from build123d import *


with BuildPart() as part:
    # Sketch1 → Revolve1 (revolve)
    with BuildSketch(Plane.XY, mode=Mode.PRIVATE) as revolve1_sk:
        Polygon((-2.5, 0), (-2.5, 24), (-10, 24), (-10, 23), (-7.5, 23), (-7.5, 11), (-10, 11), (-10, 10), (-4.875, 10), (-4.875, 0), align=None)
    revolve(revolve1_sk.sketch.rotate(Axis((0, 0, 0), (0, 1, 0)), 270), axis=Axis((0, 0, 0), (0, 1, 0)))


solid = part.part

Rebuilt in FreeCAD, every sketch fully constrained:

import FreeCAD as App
import Part
import Sketcher
from FreeCAD import Vector

doc = App.newDocument("Part")
body = doc.addObject("PartDesign::Body", "Body")

# Sketch on XY plane
sketch1 = body.newObject("Sketcher::SketchObject", "Sketch")
sketch1.AttachmentSupport = (doc.getObject("XY_Plane"), [""])
sketch1.MapMode = "FlatFace"
sketch1.addGeometry(Part.LineSegment(Vector(-2.5, 0, 0), Vector(-2.5, 24, 0)), False)
sketch1.addGeometry(Part.LineSegment(Vector(-2.5, 24, 0), Vector(-10, 24, 0)), False)
sketch1.addGeometry(Part.LineSegment(Vector(-10, 24, 0), Vector(-10, 23, 0)), False)
sketch1.addGeometry(Part.LineSegment(Vector(-10, 23, 0), Vector(-7.5, 23, 0)), False)
sketch1.addGeometry(Part.LineSegment(Vector(-7.5, 23, 0), Vector(-7.5, 11, 0)), False)
sketch1.addGeometry(Part.LineSegment(Vector(-7.5, 11, 0), Vector(-10, 11, 0)), False)
sketch1.addGeometry(Part.LineSegment(Vector(-10, 11, 0), Vector(-10, 10, 0)), False)
sketch1.addGeometry(Part.LineSegment(Vector(-10, 10, 0), Vector(-4.9, 10, 0)), False)
sketch1.addGeometry(Part.LineSegment(Vector(-4.9, 10, 0), Vector(-4.9, 0, 0)), False)
sketch1.addGeometry(Part.LineSegment(Vector(-4.9, 0, 0), Vector(-2.5, 0, 0)), False)
sketch1.addConstraint(Sketcher.Constraint("Coincident", 0, 2, 1, 1))
sketch1.addConstraint(Sketcher.Constraint("Coincident", 1, 2, 2, 1))
sketch1.addConstraint(Sketcher.Constraint("Coincident", 2, 2, 3, 1))
sketch1.addConstraint(Sketcher.Constraint("Coincident", 3, 2, 4, 1))
sketch1.addConstraint(Sketcher.Constraint("Coincident", 4, 2, 5, 1))
sketch1.addConstraint(Sketcher.Constraint("Coincident", 5, 2, 6, 1))
sketch1.addConstraint(Sketcher.Constraint("Coincident", 6, 2, 7, 1))
sketch1.addConstraint(Sketcher.Constraint("Coincident", 7, 2, 8, 1))
sketch1.addConstraint(Sketcher.Constraint("Coincident", 8, 2, 9, 1))
sketch1.addConstraint(Sketcher.Constraint("Coincident", 9, 2, 0, 1))
sketch1.addConstraint(Sketcher.Constraint("Vertical", 0))
sketch1.addConstraint(Sketcher.Constraint("Horizontal", 1))
sketch1.addConstraint(Sketcher.Constraint("Vertical", 2))
sketch1.addConstraint(Sketcher.Constraint("Horizontal", 3))
sketch1.addConstraint(Sketcher.Constraint("Vertical", 4))
sketch1.addConstraint(Sketcher.Constraint("Horizontal", 5))
sketch1.addConstraint(Sketcher.Constraint("Vertical", 6))
sketch1.addConstraint(Sketcher.Constraint("Horizontal", 7))
sketch1.addConstraint(Sketcher.Constraint("Vertical", 8))
sketch1.addConstraint(Sketcher.Constraint("Horizontal", 9))
sketch1.addConstraint(Sketcher.Constraint("PointOnObject", 8, 2, -1))
sketch1.addConstraint(Sketcher.Constraint("Vertical", 2, 2, 5, 2))
sketch1.addConstraint(Sketcher.Constraint("Equal", 2, 6))
sketch1.addConstraint(Sketcher.Constraint("DistanceY", 0, 1, 0, 2, 24.0))
sketch1.addConstraint(Sketcher.Constraint("DistanceY", 2, 2, 2, 1, 1.0))
sketch1.addConstraint(Sketcher.Constraint("DistanceY", 4, 2, 4, 1, 12.0))
sketch1.addConstraint(Sketcher.Constraint("DistanceX", 1, 2, 1, 1, 7.5))
sketch1.addConstraint(Sketcher.Constraint("DistanceX", 3, 1, 3, 2, 2.5))
sketch1.addConstraint(Sketcher.Constraint("DistanceX", 1, 2, -1, 1, 10.0))
sketch1.addConstraint(Sketcher.Constraint("DistanceX", 7, 1, 7, 2, 5.125))
revolution = body.newObject("PartDesign::Revolution", "Revolution")
revolution.Profile = sketch1
revolution.ReferenceAxis = (sketch1, ["V_Axis"])
revolution.Angle = 360

doc.recompute()
